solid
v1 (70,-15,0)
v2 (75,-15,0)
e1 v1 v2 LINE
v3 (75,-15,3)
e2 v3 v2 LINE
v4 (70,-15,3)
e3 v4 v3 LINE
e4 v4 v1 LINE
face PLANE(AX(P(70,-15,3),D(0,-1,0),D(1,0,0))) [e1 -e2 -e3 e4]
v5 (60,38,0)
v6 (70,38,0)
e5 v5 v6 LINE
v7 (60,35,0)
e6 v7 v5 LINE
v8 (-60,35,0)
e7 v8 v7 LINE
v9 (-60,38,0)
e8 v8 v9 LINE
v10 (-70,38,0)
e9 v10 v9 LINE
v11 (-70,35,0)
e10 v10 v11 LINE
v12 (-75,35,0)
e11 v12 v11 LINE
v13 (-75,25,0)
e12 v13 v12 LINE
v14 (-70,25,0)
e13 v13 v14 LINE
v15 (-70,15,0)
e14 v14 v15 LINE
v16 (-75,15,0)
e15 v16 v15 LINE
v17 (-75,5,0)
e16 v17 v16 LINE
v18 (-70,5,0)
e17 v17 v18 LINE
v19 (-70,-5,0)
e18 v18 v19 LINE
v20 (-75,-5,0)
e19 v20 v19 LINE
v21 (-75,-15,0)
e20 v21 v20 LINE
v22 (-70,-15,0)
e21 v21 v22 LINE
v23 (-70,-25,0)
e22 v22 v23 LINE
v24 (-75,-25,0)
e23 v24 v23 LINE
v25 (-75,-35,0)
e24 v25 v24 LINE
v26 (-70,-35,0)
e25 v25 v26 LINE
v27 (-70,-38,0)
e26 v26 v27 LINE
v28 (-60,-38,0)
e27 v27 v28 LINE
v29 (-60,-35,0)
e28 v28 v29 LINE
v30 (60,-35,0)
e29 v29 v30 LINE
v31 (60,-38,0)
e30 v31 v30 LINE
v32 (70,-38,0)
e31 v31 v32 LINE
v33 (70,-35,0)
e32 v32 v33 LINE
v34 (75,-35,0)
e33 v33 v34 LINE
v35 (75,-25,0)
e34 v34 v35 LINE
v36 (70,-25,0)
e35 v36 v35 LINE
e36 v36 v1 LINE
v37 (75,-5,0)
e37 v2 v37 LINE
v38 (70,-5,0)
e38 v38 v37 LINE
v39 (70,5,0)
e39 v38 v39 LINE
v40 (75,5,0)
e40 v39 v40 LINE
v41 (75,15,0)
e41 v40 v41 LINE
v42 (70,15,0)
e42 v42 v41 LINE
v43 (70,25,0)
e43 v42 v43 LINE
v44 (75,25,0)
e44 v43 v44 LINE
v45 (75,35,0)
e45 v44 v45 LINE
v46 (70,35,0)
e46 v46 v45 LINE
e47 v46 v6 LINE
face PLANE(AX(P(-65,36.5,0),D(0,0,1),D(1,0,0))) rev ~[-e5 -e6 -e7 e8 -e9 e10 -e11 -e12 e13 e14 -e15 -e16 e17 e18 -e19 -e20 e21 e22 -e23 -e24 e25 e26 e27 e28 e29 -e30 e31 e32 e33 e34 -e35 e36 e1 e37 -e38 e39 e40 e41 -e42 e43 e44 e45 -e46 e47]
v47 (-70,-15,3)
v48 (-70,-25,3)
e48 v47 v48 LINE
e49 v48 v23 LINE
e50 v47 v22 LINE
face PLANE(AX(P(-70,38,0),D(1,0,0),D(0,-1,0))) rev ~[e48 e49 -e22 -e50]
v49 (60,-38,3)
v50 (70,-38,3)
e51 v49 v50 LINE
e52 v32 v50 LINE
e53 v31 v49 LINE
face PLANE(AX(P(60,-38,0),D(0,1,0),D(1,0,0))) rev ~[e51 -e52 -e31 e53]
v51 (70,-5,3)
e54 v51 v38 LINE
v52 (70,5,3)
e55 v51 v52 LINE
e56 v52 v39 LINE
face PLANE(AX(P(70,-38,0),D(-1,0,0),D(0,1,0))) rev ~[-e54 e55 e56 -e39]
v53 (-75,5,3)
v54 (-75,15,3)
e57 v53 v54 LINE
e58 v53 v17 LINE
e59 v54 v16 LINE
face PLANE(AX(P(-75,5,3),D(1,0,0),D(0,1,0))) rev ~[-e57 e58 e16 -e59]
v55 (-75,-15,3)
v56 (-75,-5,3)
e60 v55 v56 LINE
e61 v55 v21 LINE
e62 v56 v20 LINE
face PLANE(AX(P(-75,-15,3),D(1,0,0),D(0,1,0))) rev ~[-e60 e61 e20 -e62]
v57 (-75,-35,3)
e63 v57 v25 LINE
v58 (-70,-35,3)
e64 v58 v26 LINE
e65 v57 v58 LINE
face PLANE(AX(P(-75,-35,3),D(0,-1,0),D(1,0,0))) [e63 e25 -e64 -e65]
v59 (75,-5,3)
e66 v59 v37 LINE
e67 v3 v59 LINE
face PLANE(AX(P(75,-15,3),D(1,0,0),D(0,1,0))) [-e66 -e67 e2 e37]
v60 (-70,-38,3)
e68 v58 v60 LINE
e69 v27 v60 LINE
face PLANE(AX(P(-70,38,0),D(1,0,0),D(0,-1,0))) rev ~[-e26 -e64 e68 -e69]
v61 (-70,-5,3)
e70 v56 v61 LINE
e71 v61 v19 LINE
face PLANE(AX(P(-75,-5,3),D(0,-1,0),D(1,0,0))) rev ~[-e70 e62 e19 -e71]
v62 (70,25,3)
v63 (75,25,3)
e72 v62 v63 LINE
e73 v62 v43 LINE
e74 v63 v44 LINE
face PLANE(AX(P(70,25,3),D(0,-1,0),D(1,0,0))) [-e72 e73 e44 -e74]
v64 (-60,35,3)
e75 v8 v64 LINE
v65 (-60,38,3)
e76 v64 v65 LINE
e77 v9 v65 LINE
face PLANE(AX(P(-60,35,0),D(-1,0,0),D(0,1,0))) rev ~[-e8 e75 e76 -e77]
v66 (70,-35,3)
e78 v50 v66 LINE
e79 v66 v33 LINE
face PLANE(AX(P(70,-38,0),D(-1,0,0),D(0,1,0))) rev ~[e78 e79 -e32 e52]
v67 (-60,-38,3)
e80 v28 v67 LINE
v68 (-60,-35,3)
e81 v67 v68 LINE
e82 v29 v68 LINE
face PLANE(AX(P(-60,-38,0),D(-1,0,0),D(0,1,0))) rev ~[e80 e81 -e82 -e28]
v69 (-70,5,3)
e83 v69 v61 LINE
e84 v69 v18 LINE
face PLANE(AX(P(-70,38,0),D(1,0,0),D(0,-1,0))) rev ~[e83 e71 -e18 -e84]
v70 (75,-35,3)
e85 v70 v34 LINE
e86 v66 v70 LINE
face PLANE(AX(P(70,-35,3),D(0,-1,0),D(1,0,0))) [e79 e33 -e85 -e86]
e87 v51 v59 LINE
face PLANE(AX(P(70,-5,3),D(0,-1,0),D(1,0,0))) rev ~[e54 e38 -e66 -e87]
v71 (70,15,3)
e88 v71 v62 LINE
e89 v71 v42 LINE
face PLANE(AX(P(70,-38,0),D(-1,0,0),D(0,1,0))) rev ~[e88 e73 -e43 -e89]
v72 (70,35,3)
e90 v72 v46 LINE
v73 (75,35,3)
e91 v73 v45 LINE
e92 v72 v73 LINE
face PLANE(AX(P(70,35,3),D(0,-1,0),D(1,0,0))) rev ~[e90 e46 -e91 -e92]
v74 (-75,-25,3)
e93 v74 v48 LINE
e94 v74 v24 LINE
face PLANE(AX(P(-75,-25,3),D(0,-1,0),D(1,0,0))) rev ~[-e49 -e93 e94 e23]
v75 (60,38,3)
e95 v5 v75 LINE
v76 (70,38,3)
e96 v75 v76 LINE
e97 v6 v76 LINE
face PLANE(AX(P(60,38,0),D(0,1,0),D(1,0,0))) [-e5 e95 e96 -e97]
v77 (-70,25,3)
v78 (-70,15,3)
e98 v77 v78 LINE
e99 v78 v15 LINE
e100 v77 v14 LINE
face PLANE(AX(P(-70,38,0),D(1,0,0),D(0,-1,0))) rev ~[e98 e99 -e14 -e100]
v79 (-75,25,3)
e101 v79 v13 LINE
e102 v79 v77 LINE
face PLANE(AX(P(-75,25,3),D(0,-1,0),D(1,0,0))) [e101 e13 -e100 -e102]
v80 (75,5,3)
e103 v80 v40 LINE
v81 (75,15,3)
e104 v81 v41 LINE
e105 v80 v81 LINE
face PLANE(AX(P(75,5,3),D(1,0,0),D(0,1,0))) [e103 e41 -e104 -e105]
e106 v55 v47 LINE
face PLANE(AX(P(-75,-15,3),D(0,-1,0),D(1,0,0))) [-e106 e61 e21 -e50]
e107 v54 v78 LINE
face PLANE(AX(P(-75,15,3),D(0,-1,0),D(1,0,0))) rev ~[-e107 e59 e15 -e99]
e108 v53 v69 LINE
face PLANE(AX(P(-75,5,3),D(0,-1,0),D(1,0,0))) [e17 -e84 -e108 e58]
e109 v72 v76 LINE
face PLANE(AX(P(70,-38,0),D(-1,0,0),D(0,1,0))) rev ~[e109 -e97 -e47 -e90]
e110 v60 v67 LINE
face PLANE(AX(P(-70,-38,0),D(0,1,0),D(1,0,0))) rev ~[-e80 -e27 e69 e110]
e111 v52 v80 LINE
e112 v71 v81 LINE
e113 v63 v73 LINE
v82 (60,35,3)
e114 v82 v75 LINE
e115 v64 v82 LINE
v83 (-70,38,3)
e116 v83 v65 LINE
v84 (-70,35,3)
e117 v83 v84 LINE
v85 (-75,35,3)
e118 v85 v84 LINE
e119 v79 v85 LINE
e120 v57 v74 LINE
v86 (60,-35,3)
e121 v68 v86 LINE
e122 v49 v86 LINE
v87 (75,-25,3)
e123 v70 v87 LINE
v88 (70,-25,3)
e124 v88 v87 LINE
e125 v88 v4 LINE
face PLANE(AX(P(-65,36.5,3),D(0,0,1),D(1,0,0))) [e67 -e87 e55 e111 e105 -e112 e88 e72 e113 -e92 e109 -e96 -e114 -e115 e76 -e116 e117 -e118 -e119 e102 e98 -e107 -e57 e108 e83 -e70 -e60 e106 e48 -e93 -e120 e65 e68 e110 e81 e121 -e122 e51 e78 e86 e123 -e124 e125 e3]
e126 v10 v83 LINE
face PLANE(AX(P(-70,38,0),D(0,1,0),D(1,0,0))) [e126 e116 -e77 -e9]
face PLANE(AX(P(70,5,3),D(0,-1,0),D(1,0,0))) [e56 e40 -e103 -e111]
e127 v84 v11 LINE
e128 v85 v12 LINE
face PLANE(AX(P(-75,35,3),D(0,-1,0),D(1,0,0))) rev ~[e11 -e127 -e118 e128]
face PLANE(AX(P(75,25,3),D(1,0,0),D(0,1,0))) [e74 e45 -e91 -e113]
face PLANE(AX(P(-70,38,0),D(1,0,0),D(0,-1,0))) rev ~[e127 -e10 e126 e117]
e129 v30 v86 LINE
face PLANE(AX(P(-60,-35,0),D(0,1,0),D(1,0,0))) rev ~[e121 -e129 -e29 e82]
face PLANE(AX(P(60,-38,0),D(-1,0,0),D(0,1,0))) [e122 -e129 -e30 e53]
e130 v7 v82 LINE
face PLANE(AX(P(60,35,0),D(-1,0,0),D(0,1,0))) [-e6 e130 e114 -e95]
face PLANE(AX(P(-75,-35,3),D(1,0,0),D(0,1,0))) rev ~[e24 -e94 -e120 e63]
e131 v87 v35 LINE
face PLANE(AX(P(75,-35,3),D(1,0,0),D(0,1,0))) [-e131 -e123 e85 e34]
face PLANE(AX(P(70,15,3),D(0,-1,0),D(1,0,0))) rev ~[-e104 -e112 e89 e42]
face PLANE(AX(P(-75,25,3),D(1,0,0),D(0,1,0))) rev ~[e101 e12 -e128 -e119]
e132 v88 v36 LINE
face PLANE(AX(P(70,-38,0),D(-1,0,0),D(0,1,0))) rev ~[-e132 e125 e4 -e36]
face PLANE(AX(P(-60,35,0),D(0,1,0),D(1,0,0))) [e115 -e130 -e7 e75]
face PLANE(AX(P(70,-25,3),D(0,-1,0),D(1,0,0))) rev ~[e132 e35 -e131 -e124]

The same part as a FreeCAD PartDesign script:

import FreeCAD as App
import Part
import Sketcher
from FreeCAD import Vector
Q = App.Units.Quantity

doc = App.newDocument("Part")
body = doc.addObject("PartDesign::Body", "Body")

# Sketch on XY plane
sketch1 = body.newObject("Sketcher::SketchObject", "Sketch")
sketch1.AttachmentSupport = (doc.getObject("XY_Plane"), [""])
sketch1.MapMode = "FlatFace"
sketch1.addGeometry([
    Part.LineSegment(Vector(-70, 38, 0), Vector(-70, -38, 0)),  # 0
    Part.LineSegment(Vector(-70, -38, 0), Vector(-60, -38, 0)),  # 1
    Part.LineSegment(Vector(-60, -38, 0), Vector(-60, -35, 0)),  # 2
    Part.LineSegment(Vector(-60, -35, 0), Vector(60, -35, 0)),  # 3
    Part.LineSegment(Vector(60, -35, 0), Vector(60, -38, 0)),  # 4
    Part.LineSegment(Vector(60, -38, 0), Vector(70, -38, 0)),  # 5
    Part.LineSegment(Vector(70, -38, 0), Vector(70, 38, 0)),  # 6
    Part.LineSegment(Vector(70, 38, 0), Vector(60, 38, 0)),  # 7
    Part.LineSegment(Vector(60, 38, 0), Vector(60, 35, 0)),  # 8
    Part.LineSegment(Vector(60, 35, 0), Vector(-60, 35, 0)),  # 9
    Part.LineSegment(Vector(-60, 35, 0), Vector(-60, 38, 0)),  # 10
    Part.LineSegment(Vector(-60, 38, 0), Vector(-70, 38, 0)),  # 11
], False)
sketch1.addConstraint([
    Sketcher.Constraint("Coincident", 0, 2, 1, 1),
    Sketcher.Constraint("Coincident", 1, 2, 2, 1),
    Sketcher.Constraint("Coincident", 2, 2, 3, 1),
    Sketcher.Constraint("Coincident", 3, 2, 4, 1),
    Sketcher.Constraint("Coincident", 4, 2, 5, 1),
    Sketcher.Constraint("Coincident", 5, 2, 6, 1),
    Sketcher.Constraint("Coincident", 6, 2, 7, 1),
    Sketcher.Constraint("Coincident", 7, 2, 8, 1),
    Sketcher.Constraint("Coincident", 8, 2, 9, 1),
    Sketcher.Constraint("Coincident", 9, 2, 10, 1),
    Sketcher.Constraint("Coincident", 10, 2, 11, 1),
    Sketcher.Constraint("Coincident", 11, 2, 0, 1),
    Sketcher.Constraint("Vertical", 0),
    Sketcher.Constraint("Horizontal", 1),
    Sketcher.Constraint("Vertical", 2),
    Sketcher.Constraint("Horizontal", 3),
    Sketcher.Constraint("Vertical", 4),
    Sketcher.Constraint("Horizontal", 5),
    Sketcher.Constraint("Vertical", 6),
    Sketcher.Constraint("Horizontal", 7),
    Sketcher.Constraint("Vertical", 8),
    Sketcher.Constraint("Horizontal", 9),
    Sketcher.Constraint("Vertical", 10),
    Sketcher.Constraint("Horizontal", 11),
    Sketcher.Constraint("Symmetric", 0, 2, 6, 2, -1, 1),
    Sketcher.Constraint("Symmetric", 2, 2, 8, 2, -1, 1),
    Sketcher.Constraint("Symmetric", 4, 2, 10, 2, -1, 1),
    Sketcher.Constraint("Symmetric", 1, 2, 4, 2, -2),
    Sketcher.Constraint("DistanceX", 1, 1, 1, 2, Q("10 mm")),
    Sketcher.Constraint("DistanceX", 3, 1, 3, 2, Q("120 mm")),
    Sketcher.Constraint("DistanceY", 0, 2, 0, 1, Q("76 mm")),
    Sketcher.Constraint("DistanceY", 2, 1, 2, 2, Q("3 mm")),
])
pad1 = body.newObject("PartDesign::Pad", "Pad")
pad1.Profile = sketch1
pad1.Length = 3

# Sketch on XY plane
sketch2 = body.newObject("Sketcher::SketchObject", "Sketch001")
sketch2.AttachmentSupport = (doc.getObject("XY_Plane"), [""])
sketch2.MapMode = "FlatFace"
sketch2.AttachmentOffset = App.Placement(Vector(0, 0, 3), App.Rotation())
sketch2.addGeometry([
    Part.LineSegment(Vector(-75, -25, 0), Vector(-75, -35, 0)),  # 0
    Part.LineSegment(Vector(-75, -35, 0), Vector(-70, -35, 0)),  # 1
    Part.LineSegment(Vector(-70, -35, 0), Vector(-70, -25, 0)),  # 2
    Part.LineSegment(Vector(-70, -25, 0), Vector(-75, -25, 0)),  # 3
    Part.LineSegment(Vector(-75, -5, 0), Vector(-75, -15, 0)),  # 4
    Part.LineSegment(Vector(-75, -15, 0), Vector(-70, -15, 0)),  # 5
    Part.LineSegment(Vector(-70, -15, 0), Vector(-70, -5, 0)),  # 6
    Part.LineSegment(Vector(-70, -5, 0), Vector(-75, -5, 0)),  # 7
    Part.LineSegment(Vector(-75, 15, 0), Vector(-75, 5, 0)),  # 8
    Part.LineSegment(Vector(-75, 5, 0), Vector(-70, 5, 0)),  # 9
    Part.LineSegment(Vector(-70, 5, 0), Vector(-70, 15, 0)),  # 10
    Part.LineSegment(Vector(-70, 15, 0), Vector(-75, 15, 0)),  # 11
    Part.LineSegment(Vector(-75, 35, 0), Vector(-75, 25, 0)),  # 12
    Part.LineSegment(Vector(-75, 25, 0), Vector(-70, 25, 0)),  # 13
    Part.LineSegment(Vector(-70, 25, 0), Vector(-70, 35, 0)),  # 14
    Part.LineSegment(Vector(-70, 35, 0), Vector(-75, 35, 0)),  # 15
    Part.LineSegment(Vector(70, 35, 0), Vector(70, 25, 0)),  # 16
    Part.LineSegment(Vector(70, 25, 0), Vector(75, 25, 0)),  # 17
    Part.LineSegment(Vector(75, 25, 0), Vector(75, 35, 0)),  # 18
    Part.LineSegment(Vector(75, 35, 0), Vector(70, 35, 0)),  # 19
    Part.LineSegment(Vector(70, 15, 0), Vector(70, 5, 0)),  # 20
    Part.LineSegment(Vector(70, 5, 0), Vector(75, 5, 0)),  # 21
    Part.LineSegment(Vector(75, 5, 0), Vector(75, 15, 0)),  # 22
    Part.LineSegment(Vector(75, 15, 0), Vector(70, 15, 0)),  # 23
    Part.LineSegment(Vector(70, -5, 0), Vector(70, -15, 0)),  # 24
    Part.LineSegment(Vector(70, -15, 0), Vector(75, -15, 0)),  # 25
    Part.LineSegment(Vector(75, -15, 0), Vector(75, -5, 0)),  # 26
    Part.LineSegment(Vector(75, -5, 0), Vector(70, -5, 0)),  # 27
    Part.LineSegment(Vector(70, -25, 0), Vector(70, -35, 0)),  # 28
    Part.LineSegment(Vector(70, -35, 0), Vector(75, -35, 0)),  # 29
    Part.LineSegment(Vector(75, -35, 0), Vector(75, -25, 0)),  # 30
    Part.LineSegment(Vector(75, -25, 0), Vector(70, -25, 0)),  # 31
], False)
sketch2.addConstraint([
    Sketcher.Constraint("Coincident", 0, 2, 1, 1),
    Sketcher.Constraint("Coincident", 1, 2, 2, 1),
    Sketcher.Constraint("Coincident", 2, 2, 3, 1),
    Sketcher.Constraint("Coincident", 3, 2, 0, 1),
    Sketcher.Constraint("Coincident", 4, 2, 5, 1),
    Sketcher.Constraint("Coincident", 5, 2, 6, 1),
    Sketcher.Constraint("Coincident", 6, 2, 7, 1),
    Sketcher.Constraint("Coincident", 7, 2, 4, 1),
    Sketcher.Constraint("Coincident", 8, 2, 9, 1),
    Sketcher.Constraint("Coincident", 9, 2, 10, 1),
    Sketcher.Constraint("Coincident", 10, 2, 11, 1),
    Sketcher.Constraint("Coincident", 11, 2, 8, 1),
    Sketcher.Constraint("Coincident", 12, 2, 13, 1),
    Sketcher.Constraint("Coincident", 13, 2, 14, 1),
    Sketcher.Constraint("Coincident", 14, 2, 15, 1),
    Sketcher.Constraint("Coincident", 15, 2, 12, 1),
    Sketcher.Constraint("Coincident", 16, 2, 17, 1),
    Sketcher.Constraint("Coincident", 17, 2, 18, 1),
    Sketcher.Constraint("Coincident", 18, 2, 19, 1),
    Sketcher.Constraint("Coincident", 19, 2, 16, 1),
    Sketcher.Constraint("Coincident", 20, 2, 21, 1),
    Sketcher.Constraint("Coincident", 21, 2, 22, 1),
    Sketcher.Constraint("Coincident", 22, 2, 23, 1),
    Sketcher.Constraint("Coincident", 23, 2, 20, 1),
    Sketcher.Constraint("Coincident", 24, 2, 25, 1),
    Sketcher.Constraint("Coincident", 25, 2, 26, 1),
    Sketcher.Constraint("Coincident", 26, 2, 27, 1),
    Sketcher.Constraint("Coincident", 27, 2, 24, 1),
    Sketcher.Constraint("Coincident", 28, 2, 29, 1),
    Sketcher.Constraint("Coincident", 29, 2, 30, 1),
    Sketcher.Constraint("Coincident", 30, 2, 31, 1),
    Sketcher.Constraint("Coincident", 31, 2, 28, 1),
    Sketcher.Constraint("Vertical", 0),
    Sketcher.Constraint("Horizontal", 1),
    Sketcher.Constraint("Vertical", 2),
    Sketcher.Constraint("Horizontal", 3),
    Sketcher.Constraint("Vertical", 4),
    Sketcher.Constraint("Horizontal", 5),
    Sketcher.Constraint("Vertical", 6),
    Sketcher.Constraint("Horizontal", 7),
    Sketcher.Constraint("Vertical", 8),
    Sketcher.Constraint("Horizontal", 9),
    Sketcher.Constraint("Vertical", 10),
    Sketcher.Constraint("Horizontal", 11),
    Sketcher.Constraint("Vertical", 12),
    Sketcher.Constraint("Horizontal", 13),
    Sketcher.Constraint("Vertical", 14),
    Sketcher.Constraint("Horizontal", 15),
    Sketcher.Constraint("Vertical", 16),
    Sketcher.Constraint("Horizontal", 17),
    Sketcher.Constraint("Vertical", 18),
    Sketcher.Constraint("Horizontal", 19),
    Sketcher.Constraint("Vertical", 20),
    Sketcher.Constraint("Horizontal", 21),
    Sketcher.Constraint("Vertical", 22),
    Sketcher.Constraint("Horizontal", 23),
    Sketcher.Constraint("Vertical", 24),
    Sketcher.Constraint("Horizontal", 25),
    Sketcher.Constraint("Vertical", 26),
    Sketcher.Constraint("Horizontal", 27),
    Sketcher.Constraint("Vertical", 28),
    Sketcher.Constraint("Horizontal", 29),
    Sketcher.Constraint("Vertical", 30),
    Sketcher.Constraint("Horizontal", 31),
    Sketcher.Constraint("Symmetric", 2, 2, 16, 2, -1, 1),
    Sketcher.Constraint("Symmetric", 0, 2, 18, 2, -1, 1),
    Sketcher.Constraint("Symmetric", 6, 2, 20, 2, -1, 1),
    Sketcher.Constraint("Symmetric", 4, 2, 22, 2, -1, 1),
    Sketcher.Constraint("Symmetric", 10, 2, 24, 2, -1, 1),
    Sketcher.Constraint("Symmetric", 8, 2, 26, 2, -1, 1),
    Sketcher.Constraint("Symmetric", 14, 2, 28, 2, -1, 1),
    Sketcher.Constraint("Symmetric", 12, 2, 30, 2, -1, 1),
    Sketcher.Constraint("Symmetric", 13, 2, 16, 2, -2),
    Sketcher.Constraint("Symmetric", 15, 2, 18, 2, -2),
    Sketcher.Constraint("Symmetric", 9, 2, 20, 2, -2),
    Sketcher.Constraint("Symmetric", 11, 2, 22, 2, -2),
    Sketcher.Constraint("Vertical", 3, 2, 4, 2),
    Sketcher.Constraint("Vertical", 2, 2, 5, 2),
    Sketcher.Constraint("Equal", 2, 4),
    Sketcher.Constraint("DistanceX", 1, 1, 1, 2, Q("5 mm")),
    Sketcher.Constraint("DistanceY", 0, 2, 0, 1, Q("10 mm")),
    Sketcher.Constraint("DistanceX", 0, 2, -1, 1, Q("75 mm")),
    Sketcher.Constraint("DistanceY", 0, 2, -1, 1, Q("35 mm")),
    Sketcher.Constraint("DistanceY", 4, 2, -1, 1, Q("15 mm")),
])
pad2 = body.newObject("PartDesign::Pad", "Pad001")
pad2.Profile = sketch2
pad2.Length = 3
pad2.Reversed = True

doc.recompute()
